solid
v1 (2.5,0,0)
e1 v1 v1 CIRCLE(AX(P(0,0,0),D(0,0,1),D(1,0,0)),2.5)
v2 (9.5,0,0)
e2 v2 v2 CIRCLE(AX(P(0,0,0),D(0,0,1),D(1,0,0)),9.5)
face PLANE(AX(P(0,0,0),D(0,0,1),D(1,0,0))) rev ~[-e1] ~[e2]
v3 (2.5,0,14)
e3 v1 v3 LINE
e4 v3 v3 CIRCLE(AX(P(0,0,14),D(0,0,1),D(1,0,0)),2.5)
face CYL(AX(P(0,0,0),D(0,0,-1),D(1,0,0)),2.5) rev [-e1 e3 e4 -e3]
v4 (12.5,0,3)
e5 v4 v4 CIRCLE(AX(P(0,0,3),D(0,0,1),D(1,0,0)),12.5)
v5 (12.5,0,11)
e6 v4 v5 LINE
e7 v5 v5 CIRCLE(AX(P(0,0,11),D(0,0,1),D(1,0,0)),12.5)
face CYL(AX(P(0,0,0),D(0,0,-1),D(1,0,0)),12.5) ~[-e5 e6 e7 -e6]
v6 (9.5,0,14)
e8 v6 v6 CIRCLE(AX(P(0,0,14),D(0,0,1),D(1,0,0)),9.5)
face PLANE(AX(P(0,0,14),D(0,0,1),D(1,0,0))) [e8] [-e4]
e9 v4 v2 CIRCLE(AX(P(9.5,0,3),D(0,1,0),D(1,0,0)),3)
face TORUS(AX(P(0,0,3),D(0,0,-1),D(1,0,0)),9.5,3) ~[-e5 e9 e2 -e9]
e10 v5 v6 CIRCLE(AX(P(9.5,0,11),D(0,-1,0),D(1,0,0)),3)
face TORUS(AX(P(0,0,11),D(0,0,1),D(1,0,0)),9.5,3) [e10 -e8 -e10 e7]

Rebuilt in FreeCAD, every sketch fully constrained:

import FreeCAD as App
import Part
import Sketcher

V = App.Vector
Q = App.Units.Quantity


def edges_at(feature, points):
    """Names of the edges that pass closest to the given points."""
    edges = feature.Shape.Edges
    near = lambda p: min(range(len(edges)), key=lambda i: edges[i].distToShape(Part.Vertex(*p))[0])
    return sorted({f"Edge{near(p) + 1}" for p in points})

doc = App.newDocument("Part")
body = doc.addObject("PartDesign::Body", "Body")

sketch1 = body.newObject("Sketcher::SketchObject", "Sketch")
sketch1.AttachmentSupport = (doc.getObject("XY_Plane"), [""])
sketch1.MapMode = "FlatFace"
sketch1.addGeometry(Part.Circle(V(0, 0, 0), V(0, 0, 1), 12.5), False)
sketch1.addGeometry(Part.Circle(V(0, 0, 0), V(0, 0, 1), 2.5), False)
sketch1.addConstraint(Sketcher.Constraint("Coincident", 0, 3, -1, 1))
sketch1.addConstraint(Sketcher.Constraint("Coincident", 1, 3, -1, 1))
sketch1.addConstraint(Sketcher.Constraint("Diameter", 0, Q("25 mm")))
sketch1.addConstraint(Sketcher.Constraint("Diameter", 1, Q("5 mm")))
pad1 = body.newObject("PartDesign::Pad", "Pad")
pad1.Profile = sketch1
pad1.Length = 14
doc.recompute()

fillet = body.newObject("PartDesign::Fillet", "Fillet")
fillet.Base = (pad1, edges_at(pad1, [(-12.5, 0, 14), (-12.5, 0, 0)]))
fillet.Radius = 3

doc.recompute()
